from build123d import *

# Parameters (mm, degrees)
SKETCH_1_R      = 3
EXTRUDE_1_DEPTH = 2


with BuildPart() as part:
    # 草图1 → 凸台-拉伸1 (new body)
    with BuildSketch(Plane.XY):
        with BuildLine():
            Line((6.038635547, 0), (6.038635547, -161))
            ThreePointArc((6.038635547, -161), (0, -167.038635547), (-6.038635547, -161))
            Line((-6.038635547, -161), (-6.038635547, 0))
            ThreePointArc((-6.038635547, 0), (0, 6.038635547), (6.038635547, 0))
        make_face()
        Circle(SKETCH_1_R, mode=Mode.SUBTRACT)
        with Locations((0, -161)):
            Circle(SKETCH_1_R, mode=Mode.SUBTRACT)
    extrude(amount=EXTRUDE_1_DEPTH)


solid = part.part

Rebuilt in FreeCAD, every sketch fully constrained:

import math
import FreeCAD as App
import Part
import Sketcher

doc = App.newDocument("Part")
body = doc.addObject("PartDesign::Body", "Body")

# Sketch on XY plane
sketch1 = doc.addObject("Sketcher::SketchObject", "Sketch")
body.addObject(sketch1)
sketch1.AttachmentSupport = (doc.XY_Plane, [""])
sketch1.MapMode = "FlatFace"
sketch1.addGeometry(Part.LineSegment(App.Vector(6, -161, 0), App.Vector(6, 0, 0)), False)
sketch1.addGeometry(Part.ArcOfCircle(Part.Circle(App.Vector(0, 0, 0), App.Vector(0, 0, 1), 6), math.radians(0), math.radians(180)), False)
sketch1.addGeometry(Part.LineSegment(App.Vector(-6, 0, 0), App.Vector(-6, -161, 0)), False)
sketch1.addGeometry(Part.ArcOfCircle(Part.Circle(App.Vector(0, -161, 0), App.Vector(0, 0, 1), 6), math.radians(180), math.radians(360)), False)
sketch1.addGeometry(Part.Circle(App.Vector(0, -161, 0), App.Vector(0, 0, 1), 3), False)
sketch1.addGeometry(Part.Circle(App.Vector(0, 0, 0), App.Vector(0, 0, 1), 3), False)
sketch1.addConstraint(Sketcher.Constraint("Tangent", 0, 2, 1, 1))
sketch1.addConstraint(Sketcher.Constraint("Tangent", 1, 2, 2, 1))
sketch1.addConstraint(Sketcher.Constraint("Tangent", 2, 2, 3, 1))
sketch1.addConstraint(Sketcher.Constraint("Tangent", 3, 2, 0, 1))
sketch1.addConstraint(Sketcher.Constraint("Vertical", 0))
sketch1.addConstraint(Sketcher.Constraint("Vertical", 2))
sketch1.addConstraint(Sketcher.Constraint("Coincident", 1, 3, -1, 1))
sketch1.addConstraint(Sketcher.Constraint("Coincident", 5, 3, -1, 1))
sketch1.addConstraint(Sketcher.Constraint("Coincident", 4, 3, 3, 3))
sketch1.addConstraint(Sketcher.Constraint("Equal", 4, 5))
sketch1.addConstraint(Sketcher.Constraint("Diameter", 4, 6.0))
sketch1.addConstraint(Sketcher.Constraint("DistanceY", 0, 1, 0, 2, 161.0))
sketch1.addConstraint(Sketcher.Constraint("Radius", 1, 6.038636))
pad1 = doc.addObject("PartDesign::Pad", "Pad")
body.addObject(pad1)
pad1.Profile = sketch1
pad1.Length = 2

doc.recompute()
